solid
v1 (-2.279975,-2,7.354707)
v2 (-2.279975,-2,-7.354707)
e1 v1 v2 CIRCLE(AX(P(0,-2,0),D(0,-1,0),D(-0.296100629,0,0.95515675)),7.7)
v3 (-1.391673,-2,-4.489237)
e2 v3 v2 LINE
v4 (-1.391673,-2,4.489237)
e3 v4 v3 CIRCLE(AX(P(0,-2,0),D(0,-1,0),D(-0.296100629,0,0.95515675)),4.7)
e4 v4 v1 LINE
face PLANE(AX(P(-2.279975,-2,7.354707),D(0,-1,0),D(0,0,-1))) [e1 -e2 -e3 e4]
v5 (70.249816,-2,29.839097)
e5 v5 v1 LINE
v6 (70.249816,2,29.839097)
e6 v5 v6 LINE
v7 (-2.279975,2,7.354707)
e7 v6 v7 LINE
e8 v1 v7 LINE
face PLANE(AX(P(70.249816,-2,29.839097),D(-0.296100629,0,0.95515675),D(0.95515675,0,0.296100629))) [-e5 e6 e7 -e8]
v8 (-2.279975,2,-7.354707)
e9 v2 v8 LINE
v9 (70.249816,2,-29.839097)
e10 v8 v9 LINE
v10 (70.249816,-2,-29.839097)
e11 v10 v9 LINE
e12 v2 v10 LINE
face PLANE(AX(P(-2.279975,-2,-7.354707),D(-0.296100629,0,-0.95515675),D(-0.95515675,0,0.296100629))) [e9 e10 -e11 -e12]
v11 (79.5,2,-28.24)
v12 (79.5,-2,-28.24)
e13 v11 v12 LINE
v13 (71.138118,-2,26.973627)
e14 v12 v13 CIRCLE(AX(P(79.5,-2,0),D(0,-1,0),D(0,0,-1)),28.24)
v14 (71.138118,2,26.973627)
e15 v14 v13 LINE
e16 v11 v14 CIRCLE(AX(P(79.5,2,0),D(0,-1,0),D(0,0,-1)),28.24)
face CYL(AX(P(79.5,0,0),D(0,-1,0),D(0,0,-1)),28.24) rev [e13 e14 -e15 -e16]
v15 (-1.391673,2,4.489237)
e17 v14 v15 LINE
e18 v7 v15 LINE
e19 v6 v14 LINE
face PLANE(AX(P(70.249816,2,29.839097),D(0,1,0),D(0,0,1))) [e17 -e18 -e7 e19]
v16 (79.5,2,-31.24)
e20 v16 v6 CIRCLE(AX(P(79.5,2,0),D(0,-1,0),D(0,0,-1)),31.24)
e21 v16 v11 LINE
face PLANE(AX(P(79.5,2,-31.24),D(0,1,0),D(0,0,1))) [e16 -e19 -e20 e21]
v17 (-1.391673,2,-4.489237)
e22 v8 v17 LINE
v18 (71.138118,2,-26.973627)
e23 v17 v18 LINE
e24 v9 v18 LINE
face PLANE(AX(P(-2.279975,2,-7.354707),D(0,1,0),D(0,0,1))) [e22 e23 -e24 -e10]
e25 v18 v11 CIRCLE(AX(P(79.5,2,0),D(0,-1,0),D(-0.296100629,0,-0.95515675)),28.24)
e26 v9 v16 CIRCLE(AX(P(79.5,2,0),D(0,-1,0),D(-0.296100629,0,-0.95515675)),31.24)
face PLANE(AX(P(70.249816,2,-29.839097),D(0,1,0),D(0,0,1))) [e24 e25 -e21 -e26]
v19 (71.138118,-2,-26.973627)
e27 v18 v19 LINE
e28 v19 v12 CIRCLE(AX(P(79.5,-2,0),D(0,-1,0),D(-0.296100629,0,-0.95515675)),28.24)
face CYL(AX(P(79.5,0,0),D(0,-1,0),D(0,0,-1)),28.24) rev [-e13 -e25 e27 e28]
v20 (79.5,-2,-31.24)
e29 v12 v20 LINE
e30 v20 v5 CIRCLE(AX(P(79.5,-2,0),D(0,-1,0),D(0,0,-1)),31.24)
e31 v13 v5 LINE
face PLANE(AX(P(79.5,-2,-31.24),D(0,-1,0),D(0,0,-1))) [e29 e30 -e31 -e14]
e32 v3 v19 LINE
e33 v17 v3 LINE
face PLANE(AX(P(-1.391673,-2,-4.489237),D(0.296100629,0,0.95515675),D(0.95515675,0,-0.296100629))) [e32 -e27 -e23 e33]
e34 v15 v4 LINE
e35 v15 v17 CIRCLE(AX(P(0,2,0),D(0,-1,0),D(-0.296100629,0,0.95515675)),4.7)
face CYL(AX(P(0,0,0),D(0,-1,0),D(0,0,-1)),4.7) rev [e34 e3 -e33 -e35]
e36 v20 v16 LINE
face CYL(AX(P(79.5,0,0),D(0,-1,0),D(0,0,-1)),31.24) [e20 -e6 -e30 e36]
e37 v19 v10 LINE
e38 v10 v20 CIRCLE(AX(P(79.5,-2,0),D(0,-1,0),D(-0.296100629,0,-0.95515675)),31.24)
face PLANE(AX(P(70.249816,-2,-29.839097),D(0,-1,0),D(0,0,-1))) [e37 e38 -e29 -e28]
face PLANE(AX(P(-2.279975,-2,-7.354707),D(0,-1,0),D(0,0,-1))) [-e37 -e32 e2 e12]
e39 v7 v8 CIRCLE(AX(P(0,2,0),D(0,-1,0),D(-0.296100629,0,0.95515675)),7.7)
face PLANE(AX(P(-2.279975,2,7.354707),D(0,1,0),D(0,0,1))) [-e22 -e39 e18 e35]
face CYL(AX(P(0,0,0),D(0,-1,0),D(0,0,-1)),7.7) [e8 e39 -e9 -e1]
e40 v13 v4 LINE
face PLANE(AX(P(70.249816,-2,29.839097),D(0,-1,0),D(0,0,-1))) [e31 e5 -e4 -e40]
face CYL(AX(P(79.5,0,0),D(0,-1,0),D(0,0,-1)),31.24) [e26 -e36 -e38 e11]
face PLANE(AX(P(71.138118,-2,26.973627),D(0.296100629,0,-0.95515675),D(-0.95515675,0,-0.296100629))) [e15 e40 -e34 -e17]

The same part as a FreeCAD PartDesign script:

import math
import FreeCAD as App
import Part
import Sketcher


def add_polygon(sketch, points):
    """Adds a closed chain of lines whose ends are joined by coincident constraints."""
    first, n = sketch.GeometryCount, len(points)
    for a, b in zip(points, points[1:] + points[:1]):
        sketch.addGeometry(Part.LineSegment(App.Vector(*a, 0), App.Vector(*b, 0)), False)
    for i in range(n):
        sketch.addConstraint(Sketcher.Constraint("Coincident", first + i, 2, first + (i + 1) % n, 1))

doc = App.newDocument("Part")
body = doc.addObject("PartDesign::Body", "Body")

# Sketch on YZ plane
sketch1 = body.newObject("Sketcher::SketchObject", "Sketch")
sketch1.AttachmentSupport = (doc.getObject("YZ_Plane"), [""])
sketch1.MapMode = "FlatFace"
sketch1.AttachmentOffset = App.Placement(App.Vector(0, 0, 79.5), App.Rotation())
add_polygon(sketch1, [(2, -28.24), (-2, -28.24), (-2, -31.24), (2, -31.24)])  # lines 0-3
sketch1.addConstraint(Sketcher.Constraint("Horizontal", 0))
sketch1.addConstraint(Sketcher.Constraint("Vertical", 1))
sketch1.addConstraint(Sketcher.Constraint("Horizontal", 2))
sketch1.addConstraint(Sketcher.Constraint("Vertical", 3))
sketch1.addConstraint(Sketcher.Constraint("DistanceX", 0, 2, 0, 1, 4.0))
sketch1.addConstraint(Sketcher.Constraint("DistanceY", 1, 2, 1, 1, 3.0))
sketch1.addConstraint(Sketcher.Constraint("DistanceX", 0, 2, -1, 1, 2.0))
sketch1.addConstraint(Sketcher.Constraint("DistanceY", 0, 2, -1, 1, 28.24))

# Sketch on XZ plane
sketch2 = body.newObject("Sketcher::SketchObject", "Sketch001")
sketch2.AttachmentSupport = (doc.getObject("XZ_Plane"), [""])
sketch2.MapMode = "FlatFace"
sketch2.addGeometry(Part.LineSegment(App.Vector(-1.391673, -4.489237, 0), App.Vector(71.138118, -26.973627, 0)), False)
sketch2.addGeometry(Part.ArcOfCircle(Part.Circle(App.Vector(79.5, 0, 0), App.Vector(0, 0, 1), 28.24), math.radians(-107.223548), math.radians(107.223548)), False)
sketch2.addGeometry(Part.LineSegment(App.Vector(71.138118, 26.973627, 0), App.Vector(-1.391673, 4.489237, 0)), False)
sketch2.addGeometry(Part.ArcOfCircle(Part.Circle(App.Vector(0, 0, 0), App.Vector(0, 0, 1), 4.7), math.radians(107.223548), math.radians(252.776452)), False)
sketch2.addConstraint(Sketcher.Constraint("Tangent", 0, 2, 1, 1))
sketch2.addConstraint(Sketcher.Constraint("Tangent", 1, 2, 2, 1))
sketch2.addConstraint(Sketcher.Constraint("Tangent", 2, 2, 3, 1))
sketch2.addConstraint(Sketcher.Constraint("Tangent", 3, 2, 0, 1))
sketch2.addConstraint(Sketcher.Constraint("Coincident", 3, 3, -1, 1))
sketch2.addConstraint(Sketcher.Constraint("PointOnObject", 1, 3, -1))
sketch2.addConstraint(Sketcher.Constraint("Radius", 3, 4.7))
sketch2.addConstraint(Sketcher.Constraint("Radius", 1, 28.24))
sketch2.addConstraint(Sketcher.Constraint("DistanceX", -1, 1, 1, 3, 79.5))
doc.recompute()

additivepipe = body.newObject("PartDesign::AdditivePipe", "AdditivePipe")
additivepipe.Profile = sketch1
additivepipe.Spine = (sketch2, ["Edge1", "Edge2", "Edge3", "Edge4"])

doc.recompute()
